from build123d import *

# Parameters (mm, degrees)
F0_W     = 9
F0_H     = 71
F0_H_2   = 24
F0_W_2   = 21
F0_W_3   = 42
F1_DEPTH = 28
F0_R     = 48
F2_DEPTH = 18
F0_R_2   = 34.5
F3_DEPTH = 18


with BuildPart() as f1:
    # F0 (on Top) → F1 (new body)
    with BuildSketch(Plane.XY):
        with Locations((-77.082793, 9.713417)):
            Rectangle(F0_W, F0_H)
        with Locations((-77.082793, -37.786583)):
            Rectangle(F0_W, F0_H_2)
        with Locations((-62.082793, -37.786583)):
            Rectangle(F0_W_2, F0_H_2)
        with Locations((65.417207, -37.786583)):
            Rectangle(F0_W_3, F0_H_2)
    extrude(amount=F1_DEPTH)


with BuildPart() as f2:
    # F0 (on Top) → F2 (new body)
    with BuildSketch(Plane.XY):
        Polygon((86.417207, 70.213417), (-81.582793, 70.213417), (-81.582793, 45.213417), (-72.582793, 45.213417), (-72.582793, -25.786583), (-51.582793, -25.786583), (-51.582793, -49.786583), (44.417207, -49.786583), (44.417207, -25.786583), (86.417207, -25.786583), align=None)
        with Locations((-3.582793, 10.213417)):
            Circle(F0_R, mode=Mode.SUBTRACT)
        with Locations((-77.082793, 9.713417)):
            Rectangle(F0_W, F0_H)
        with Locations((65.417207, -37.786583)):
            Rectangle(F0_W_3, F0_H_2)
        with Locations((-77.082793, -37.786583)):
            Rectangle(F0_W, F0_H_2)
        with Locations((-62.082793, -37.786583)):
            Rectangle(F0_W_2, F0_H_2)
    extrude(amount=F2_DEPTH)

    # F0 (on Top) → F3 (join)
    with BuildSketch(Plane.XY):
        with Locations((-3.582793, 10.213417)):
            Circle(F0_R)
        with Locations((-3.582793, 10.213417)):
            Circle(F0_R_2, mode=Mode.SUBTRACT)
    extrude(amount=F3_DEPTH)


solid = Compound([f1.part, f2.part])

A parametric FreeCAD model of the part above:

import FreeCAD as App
import Part
import Sketcher

V = App.Vector

doc = App.newDocument("Part")
params = doc.addObject("Spreadsheet::Sheet", "Params")
for row, (alias, value) in enumerate([
    ("sketch1_width", "30 mm"),
    ("sketch1_width2", "21 mm"),
    ("sketch1_width3", "42 mm"),
    ("sketch1_height", "95 mm"),
    ("sketch1_height2", "24 mm"),
    ("pad1_length", "28 mm"),
    ("sketch2_diameter", "96 mm"),
    ("sketch2_width", "168 mm"),
    ("sketch2_height", "120 mm"),
    ("pad2_length", "18 mm"),
    ("sketch3_diameter", "96 mm"),
    ("sketch3_diameter2", "69 mm"),
    ("pad3_length", "18 mm"),
], start=1):
    params.set(f"A{row}", alias)
    params.set(f"B{row}", "=" + value)
    params.setAlias(f"B{row}", alias)

body = doc.addObject("PartDesign::Body", "Body")
body.AllowCompound = True

sketch1 = body.newObject("Sketcher::SketchObject", "Sketch")
sketch1.AttachmentSupport = (doc.getObject("XY_Plane"), [""])
sketch1.MapMode = "FlatFace"
sketch1.addGeometry([
    Part.LineSegment(V(-81.582793, 45.213417, 0), V(-81.582793, -49.786583, 0)),
    Part.LineSegment(V(-81.582793, -49.786583, 0), V(-51.582793, -49.786583, 0)),
    Part.LineSegment(V(-51.582793, -49.786583, 0), V(-51.582793, -25.786583, 0)),
    Part.LineSegment(V(-51.582793, -25.786583, 0), V(-72.582793, -25.786583, 0)),
    Part.LineSegment(V(-72.582793, -25.786583, 0), V(-72.582793, 45.213417, 0)),
    Part.LineSegment(V(-72.582793, 45.213417, 0), V(-81.582793, 45.213417, 0)),
    Part.LineSegment(V(44.417207, -25.786583, 0), V(44.417207, -49.786583, 0)),
    Part.LineSegment(V(44.417207, -49.786583, 0), V(86.417207, -49.786583, 0)),
    Part.LineSegment(V(86.417207, -49.786583, 0), V(86.417207, -25.786583, 0)),
    Part.LineSegment(V(86.417207, -25.786583, 0), V(44.417207, -25.786583, 0)),
], False)
sketch1.addConstraint([
    Sketcher.Constraint("Coincident", 0, 2, 1, 1),
    Sketcher.Constraint("Coincident", 1, 2, 2, 1),
    Sketcher.Constraint("Coincident", 2, 2, 3, 1),
    Sketcher.Constraint("Coincident", 3, 2, 4, 1),
    Sketcher.Constraint("Coincident", 4, 2, 5, 1),
    Sketcher.Constraint("Coincident", 5, 2, 0, 1),
    Sketcher.Constraint("Coincident", 6, 2, 7, 1),
    Sketcher.Constraint("Coincident", 7, 2, 8, 1),
    Sketcher.Constraint("Coincident", 8, 2, 9, 1),
    Sketcher.Constraint("Coincident", 9, 2, 6, 1),
    Sketcher.Constraint("Vertical", 0),
    Sketcher.Constraint("Horizontal", 1),
    Sketcher.Constraint("Vertical", 2),
    Sketcher.Constraint("Horizontal", 3),
    Sketcher.Constraint("Vertical", 4),
    Sketcher.Constraint("Horizontal", 5),
    Sketcher.Constraint("Vertical", 6),
    Sketcher.Constraint("Horizontal", 7),
    Sketcher.Constraint("Vertical", 8),
    Sketcher.Constraint("Horizontal", 9),
    Sketcher.Constraint("Horizontal", 1, 2, 6, 2),
    Sketcher.Constraint("Horizontal", 3, 2, 8, 2),
    Sketcher.Constraint("DistanceX", 1, 1, 1, 2, 30.0),
    Sketcher.Constraint("DistanceX", 3, 2, 3, 1, 21.0),
    Sketcher.Constraint("DistanceX", 7, 1, 7, 2, 42.0),
    Sketcher.Constraint("DistanceY", 0, 2, 0, 1, 95.0),
    Sketcher.Constraint("DistanceY", 2, 1, 2, 2, 24.0),
    Sketcher.Constraint("DistanceX", 1, 2, 6, 2, 96.0),
    Sketcher.Constraint("DistanceX", 0, 2, -1, 1, 81.582793),
    Sketcher.Constraint("DistanceY", 0, 2, -1, 1, 49.786583),
])
sketch1.setExpression("Constraints[22]", "Params.sketch1_width")
sketch1.setExpression("Constraints[23]", "Params.sketch1_width2")
sketch1.setExpression("Constraints[24]", "Params.sketch1_width3")
sketch1.setExpression("Constraints[25]", "Params.sketch1_height")
sketch1.setExpression("Constraints[26]", "Params.sketch1_height2")
pad1 = body.newObject("PartDesign::Pad", "Pad")
pad1.Profile = sketch1
pad1.setExpression("Length", "Params.pad1_length")
body2 = doc.addObject("PartDesign::Body", "Body001")

sketch2 = body2.newObject("Sketcher::SketchObject", "Sketch001")
sketch2.AttachmentSupport = (doc.getObject("XY_Plane001"), [""])
sketch2.MapMode = "FlatFace"
sketch2.addGeometry([
    Part.LineSegment(V(86.417207, 70.213417, 0), V(-81.582793, 70.213417, 0)),
    Part.LineSegment(V(-81.582793, 70.213417, 0), V(-81.582793, -49.786583, 0)),
    Part.LineSegment(V(-81.582793, -49.786583, 0), V(86.417207, -49.786583, 0)),
    Part.LineSegment(V(86.417207, -49.786583, 0), V(86.417207, 70.213417, 0)),
    Part.Circle(V(-3.582793, 10.213417, 0), V(0, 0, 1), 48),
], False)
sketch2.addConstraint([
    Sketcher.Constraint("Coincident", 0, 2, 1, 1),
    Sketcher.Constraint("Coincident", 1, 2, 2, 1),
    Sketcher.Constraint("Coincident", 2, 2, 3, 1),
    Sketcher.Constraint("Coincident", 3, 2, 0, 1),
    Sketcher.Constraint("Horizontal", 0),
    Sketcher.Constraint("Vertical", 1),
    Sketcher.Constraint("Horizontal", 2),
    Sketcher.Constraint("Vertical", 3),
    Sketcher.Constraint("Diameter", 4, 96.0),
    Sketcher.Constraint("DistanceX", 0, 2, 0, 1, 168.0),
    Sketcher.Constraint("DistanceY", 1, 2, 1, 1, 120.0),
    Sketcher.Constraint("DistanceX", 0, 2, 4, 3, 78.0),
    Sketcher.Constraint("DistanceY", 4, 3, 0, 2, 60.0),
    Sketcher.Constraint("DistanceX", 4, 3, -1, 1, 3.582793),
    Sketcher.Constraint("DistanceY", -1, 1, 4, 3, 10.213417),
])
sketch2.setExpression("Constraints[8]", "Params.sketch2_diameter")
sketch2.setExpression("Constraints[9]", "Params.sketch2_width")
sketch2.setExpression("Constraints[10]", "Params.sketch2_height")
pad2 = body2.newObject("PartDesign::Pad", "Pad001")
pad2.Profile = sketch2
pad2.setExpression("Length", "Params.pad2_length")

sketch3 = body2.newObject("Sketcher::SketchObject", "Sketch002")
sketch3.AttachmentSupport = (doc.getObject("XY_Plane001"), [""])
sketch3.MapMode = "FlatFace"
sketch3.addGeometry([
    Part.Circle(V(-3.582793, 10.213417, 0), V(0, 0, 1), 48),
    Part.Circle(V(-3.582793, 10.213417, 0), V(0, 0, 1), 34.5),
], False)
sketch3.addConstraint([
    Sketcher.Constraint("Coincident", 1, 3, 0, 3),
    Sketcher.Constraint("Diameter", 0, 96.0),
    Sketcher.Constraint("Diameter", 1, 69.0),
    Sketcher.Constraint("DistanceX", 0, 3, -1, 1, 3.582793),
    Sketcher.Constraint("DistanceY", -1, 1, 0, 3, 10.213417),
])
sketch3.setExpression("Constraints[1]", "Params.sketch3_diameter")
sketch3.setExpression("Constraints[2]", "Params.sketch3_diameter2")
pad3 = body2.newObject("PartDesign::Pad", "Pad002")
pad3.Profile = sketch3
pad3.setExpression("Length", "Params.pad3_length")

doc.recompute()
